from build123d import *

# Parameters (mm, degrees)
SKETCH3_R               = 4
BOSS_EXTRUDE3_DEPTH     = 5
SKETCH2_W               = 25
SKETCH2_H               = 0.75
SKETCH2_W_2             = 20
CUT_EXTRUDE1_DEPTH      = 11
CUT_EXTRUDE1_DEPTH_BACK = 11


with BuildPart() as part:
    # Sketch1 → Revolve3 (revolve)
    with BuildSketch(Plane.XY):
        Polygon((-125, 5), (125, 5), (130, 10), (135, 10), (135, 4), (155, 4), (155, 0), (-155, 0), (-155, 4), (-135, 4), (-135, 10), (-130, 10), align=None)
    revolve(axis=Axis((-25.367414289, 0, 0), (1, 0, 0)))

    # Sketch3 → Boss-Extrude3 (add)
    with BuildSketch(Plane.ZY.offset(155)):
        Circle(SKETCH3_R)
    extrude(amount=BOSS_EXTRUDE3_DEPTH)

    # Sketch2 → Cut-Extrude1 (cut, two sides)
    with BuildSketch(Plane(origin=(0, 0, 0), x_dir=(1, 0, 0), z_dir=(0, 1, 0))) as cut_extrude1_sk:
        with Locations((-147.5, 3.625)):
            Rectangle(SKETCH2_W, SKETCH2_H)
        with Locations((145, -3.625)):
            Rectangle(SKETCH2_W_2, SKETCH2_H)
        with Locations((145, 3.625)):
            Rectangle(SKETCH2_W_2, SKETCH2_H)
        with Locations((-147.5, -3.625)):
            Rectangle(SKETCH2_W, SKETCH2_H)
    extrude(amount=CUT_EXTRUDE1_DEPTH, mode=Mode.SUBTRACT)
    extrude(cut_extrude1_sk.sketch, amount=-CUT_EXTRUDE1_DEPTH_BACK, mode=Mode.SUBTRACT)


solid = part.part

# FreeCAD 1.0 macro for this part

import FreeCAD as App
import Part
import Sketcher

doc = App.newDocument("Part")
body = doc.addObject("PartDesign::Body", "Body")

sketch1 = doc.addObject("Sketcher::SketchObject", "Sketch")
body.addObject(sketch1)
sketch1.AttachmentSupport = (doc.XY_Plane, [""])
sketch1.MapMode = "FlatFace"
sketch1.addGeometry(Part.LineSegment(App.Vector(125, 5, 0), App.Vector(-125, 5, 0)), False)
sketch1.addGeometry(Part.LineSegment(App.Vector(-125, 5, 0), App.Vector(-130, 10, 0)), False)
sketch1.addGeometry(Part.LineSegment(App.Vector(-130, 10, 0), App.Vector(-135, 10, 0)), False)
sketch1.addGeometry(Part.LineSegment(App.Vector(-135, 10, 0), App.Vector(-135, 4, 0)), False)
sketch1.addGeometry(Part.LineSegment(App.Vector(-135, 4, 0), App.Vector(-155, 4, 0)), False)
sketch1.addGeometry(Part.LineSegment(App.Vector(-155, 4, 0), App.Vector(-155, 0, 0)), False)
sketch1.addGeometry(Part.LineSegment(App.Vector(-155, 0, 0), App.Vector(155, 0, 0)), False)
sketch1.addGeometry(Part.LineSegment(App.Vector(155, 0, 0), App.Vector(155, 4, 0)), False)
sketch1.addGeometry(Part.LineSegment(App.Vector(155, 4, 0), App.Vector(135, 4, 0)), False)
sketch1.addGeometry(Part.LineSegment(App.Vector(135, 4, 0), App.Vector(135, 10, 0)), False)
sketch1.addGeometry(Part.LineSegment(App.Vector(135, 10, 0), App.Vector(130, 10, 0)), False)
sketch1.addGeometry(Part.LineSegment(App.Vector(130, 10, 0), App.Vector(125, 5, 0)), False)
sketch1.addConstraint(Sketcher.Constraint("Coincident", 0, 2, 1, 1))
sketch1.addConstraint(Sketcher.Constraint("Coincident", 1, 2, 2, 1))
sketch1.addConstraint(Sketcher.Constraint("Coincident", 2, 2, 3, 1))
sketch1.addConstraint(Sketcher.Constraint("Coincident", 3, 2, 4, 1))
sketch1.addConstraint(Sketcher.Constraint("Coincident", 4, 2, 5, 1))
sketch1.addConstraint(Sketcher.Constraint("Coincident", 5, 2, 6, 1))
sketch1.addConstraint(Sketcher.Constraint("Coincident", 6, 2, 7, 1))
sketch1.addConstraint(Sketcher.Constraint("Coincident", 7, 2, 8, 1))
sketch1.addConstraint(Sketcher.Constraint("Coincident", 8, 2, 9, 1))
sketch1.addConstraint(Sketcher.Constraint("Coincident", 9, 2, 10, 1))
sketch1.addConstraint(Sketcher.Constraint("Coincident", 10, 2, 11, 1))
sketch1.addConstraint(Sketcher.Constraint("Coincident", 11, 2, 0, 1))
sketch1.addConstraint(Sketcher.Constraint("Horizontal", 0))
sketch1.addConstraint(Sketcher.Constraint("Horizontal", 2))
sketch1.addConstraint(Sketcher.Constraint("Vertical", 3))
sketch1.addConstraint(Sketcher.Constraint("Horizontal", 4))
sketch1.addConstraint(Sketcher.Constraint("Vertical", 5))
sketch1.addConstraint(Sketcher.Constraint("Horizontal", 6))
sketch1.addConstraint(Sketcher.Constraint("Vertical", 7))
sketch1.addConstraint(Sketcher.Constraint("Horizontal", 8))
sketch1.addConstraint(Sketcher.Constraint("Vertical", 9))
sketch1.addConstraint(Sketcher.Constraint("Horizontal", 10))
sketch1.addConstraint(Sketcher.Constraint("Symmetric", 5, 2, 6, 2, -1, 1))
sketch1.addConstraint(Sketcher.Constraint("Symmetric", 3, 2, 8, 2, -2))
sketch1.addConstraint(Sketcher.Constraint("Symmetric", 1, 2, 10, 2, -2))
sketch1.addConstraint(Sketcher.Constraint("Perpendicular", 1, 11))
sketch1.addConstraint(Sketcher.Constraint("Equal", 1, 11))
sketch1.addConstraint(Sketcher.Constraint("DistanceX", 0, 2, 0, 1, 250.0))
sketch1.addConstraint(Sketcher.Constraint("DistanceX", 2, 2, 2, 1, 5.0))
sketch1.addConstraint(Sketcher.Constraint("DistanceX", 4, 2, 4, 1, 20.0))
sketch1.addConstraint(Sketcher.Constraint("DistanceX", 6, 1, 6, 2, 310.0))
sketch1.addConstraint(Sketcher.Constraint("DistanceY", 3, 2, 3, 1, 6.0))
sketch1.addConstraint(Sketcher.Constraint("DistanceY", 5, 2, 5, 1, 4.0))
revolution = doc.addObject("PartDesign::Revolution", "Revolution")
body.addObject(revolution)
revolution.Profile = sketch1
revolution.ReferenceAxis = (sketch1, ["H_Axis"])
revolution.Angle = 360

sketch2 = doc.addObject("Sketcher::SketchObject", "Sketch001")
body.addObject(sketch2)
sketch2.AttachmentSupport = (doc.YZ_Plane, [""])
sketch2.MapMode = "FlatFace"
sketch2.AttachmentOffset = App.Placement(App.Vector(0, 0, -155), App.Rotation())
sketch2.addGeometry(Part.Circle(App.Vector(0, 0, 0), App.Vector(0, 0, 1), 4), False)
sketch2.addConstraint(Sketcher.Constraint("Coincident", 0, 3, -1, 1))
sketch2.addConstraint(Sketcher.Constraint("Diameter", 0, 8.0))
pad1 = doc.addObject("PartDesign::Pad", "Pad")
body.addObject(pad1)
pad1.Profile = sketch2
pad1.Length = 5
pad1.Reversed = True

sketch3 = doc.addObject("Sketcher::SketchObject", "Sketch002")
body.addObject(sketch3)
sketch3.AttachmentSupport = (doc.XZ_Plane, [""])
sketch3.MapMode = "FlatFace"
sketch3.addGeometry(Part.LineSegment(App.Vector(-160, -4, 0), App.Vector(-160, -3.2, 0)), False)
sketch3.addGeometry(Part.LineSegment(App.Vector(-160, -3.2, 0), App.Vector(-135, -3.2, 0)), False)
sketch3.addGeometry(Part.LineSegment(App.Vector(-135, -3.2, 0), App.Vector(-135, -4, 0)), False)
sketch3.addGeometry(Part.LineSegment(App.Vector(-135, -4, 0), App.Vector(-160, -4, 0)), False)
sketch3.addGeometry(Part.LineSegment(App.Vector(135, 3.2, 0), App.Vector(135, 4, 0)), False)
sketch3.addGeometry(Part.LineSegment(App.Vector(135, 4, 0), App.Vector(155, 4, 0)), False)
sketch3.addGeometry(Part.LineSegment(App.Vector(155, 4, 0), App.Vector(155, 3.2, 0)), False)
sketch3.addGeometry(Part.LineSegment(App.Vector(155, 3.2, 0), App.Vector(135, 3.2, 0)), False)
sketch3.addGeometry(Part.LineSegment(App.Vector(135, -4, 0), App.Vector(135, -3.2, 0)), False)
sketch3.addGeometry(Part.LineSegment(App.Vector(135, -3.2, 0), App.Vector(155, -3.2, 0)), False)
sketch3.addGeometry(Part.LineSegment(App.Vector(155, -3.2, 0), App.Vector(155, -4, 0)), False)
sketch3.addGeometry(Part.LineSegment(App.Vector(155, -4, 0), App.Vector(135, -4, 0)), False)
sketch3.addGeometry(Part.LineSegment(App.Vector(-160, 3.2, 0), App.Vector(-160, 4, 0)), False)
sketch3.addGeometry(Part.LineSegment(App.Vector(-160, 4, 0), App.Vector(-135, 4, 0)), False)
sketch3.addGeometry(Part.LineSegment(App.Vector(-135, 4, 0), App.Vector(-135, 3.2, 0)), False)
sketch3.addGeometry(Part.LineSegment(App.Vector(-135, 3.2, 0), App.Vector(-160, 3.2, 0)), False)
sketch3.addConstraint(Sketcher.Constraint("Coincident", 0, 2, 1, 1))
sketch3.addConstraint(Sketcher.Constraint("Coincident", 1, 2, 2, 1))
sketch3.addConstraint(Sketcher.Constraint("Coincident", 2, 2, 3, 1))
sketch3.addConstraint(Sketcher.Constraint("Coincident", 3, 2, 0, 1))
sketch3.addConstraint(Sketcher.Constraint("Coincident", 4, 2, 5, 1))
sketch3.addConstraint(Sketcher.Constraint("Coincident", 5, 2, 6, 1))
sketch3.addConstraint(Sketcher.Constraint("Coincident", 6, 2, 7, 1))
sketch3.addConstraint(Sketcher.Constraint("Coincident", 7, 2, 4, 1))
sketch3.addConstraint(Sketcher.Constraint("Coincident", 8, 2, 9, 1))
sketch3.addConstraint(Sketcher.Constraint("Coincident", 9, 2, 10, 1))
sketch3.addConstraint(Sketcher.Constraint("Coincident", 10, 2, 11, 1))
sketch3.addConstraint(Sketcher.Constraint("Coincident", 11, 2, 8, 1))
sketch3.addConstraint(Sketcher.Constraint("Coincident", 12, 2, 13, 1))
sketch3.addConstraint(Sketcher.Constraint("Coincident", 13, 2, 14, 1))
sketch3.addConstraint(Sketcher.Constraint("Coincident", 14, 2, 15, 1))
sketch3.addConstraint(Sketcher.Constraint("Coincident", 15, 2, 12, 1))
sketch3.addConstraint(Sketcher.Constraint("Vertical", 0))
sketch3.addConstraint(Sketcher.Constraint("Horizontal", 1))
sketch3.addConstraint(Sketcher.Constraint("Vertical", 2))
sketch3.addConstraint(Sketcher.Constraint("Horizontal", 3))
sketch3.addConstraint(Sketcher.Constraint("Vertical", 4))
sketch3.addConstraint(Sketcher.Constraint("Horizontal", 5))
sketch3.addConstraint(Sketcher.Constraint("Vertical", 6))
sketch3.addConstraint(Sketcher.Constraint("Horizontal", 7))
sketch3.addConstraint(Sketcher.Constraint("Vertical", 8))
sketch3.addConstraint(Sketcher.Constraint("Horizontal", 9))
sketch3.addConstraint(Sketcher.Constraint("Vertical", 10))
sketch3.addConstraint(Sketcher.Constraint("Horizontal", 11))
sketch3.addConstraint(Sketcher.Constraint("Vertical", 12))
sketch3.addConstraint(Sketcher.Constraint("Horizontal", 13))
sketch3.addConstraint(Sketcher.Constraint("Vertical", 14))
sketch3.addConstraint(Sketcher.Constraint("Horizontal", 15))
sketch3.addConstraint(Sketcher.Constraint("Symmetric", 2, 2, 4, 2, -1, 1))
sketch3.addConstraint(Sketcher.Constraint("Symmetric", 11, 2, 13, 2, -1, 1))
sketch3.addConstraint(Sketcher.Constraint("Symmetric", 1, 2, 8, 2, -2))
sketch3.addConstraint(Sketcher.Constraint("Symmetric", 6, 2, 9, 2, -1))
sketch3.addConstraint(Sketcher.Constraint("Symmetric", 3, 2, 12, 2, -1))
sketch3.addConstraint(Sketcher.Constraint("Horizontal", 7, 2, 14, 2))
sketch3.addConstraint(Sketcher.Constraint("DistanceX", 1, 1, 1, 2, 25.0))
sketch3.addConstraint(Sketcher.Constraint("DistanceX", 5, 1, 5, 2, 20.0))
sketch3.addConstraint(Sketcher.Constraint("DistanceX", 0, 2, -1, 1, 160.0))
sketch3.addConstraint(Sketcher.Constraint("DistanceY", 2, 2, -1, 1, 4.0))
sketch3.addConstraint(Sketcher.Constraint("DistanceY", 0, 1, 0, 2, 0.75))
pocket1 = doc.addObject("PartDesign::Pocket", "Pocket")
body.addObject(pocket1)
pocket1.Profile = sketch3
pocket1.Type = "ThroughAll"
pocket1.Midplane = True

doc.recompute()
